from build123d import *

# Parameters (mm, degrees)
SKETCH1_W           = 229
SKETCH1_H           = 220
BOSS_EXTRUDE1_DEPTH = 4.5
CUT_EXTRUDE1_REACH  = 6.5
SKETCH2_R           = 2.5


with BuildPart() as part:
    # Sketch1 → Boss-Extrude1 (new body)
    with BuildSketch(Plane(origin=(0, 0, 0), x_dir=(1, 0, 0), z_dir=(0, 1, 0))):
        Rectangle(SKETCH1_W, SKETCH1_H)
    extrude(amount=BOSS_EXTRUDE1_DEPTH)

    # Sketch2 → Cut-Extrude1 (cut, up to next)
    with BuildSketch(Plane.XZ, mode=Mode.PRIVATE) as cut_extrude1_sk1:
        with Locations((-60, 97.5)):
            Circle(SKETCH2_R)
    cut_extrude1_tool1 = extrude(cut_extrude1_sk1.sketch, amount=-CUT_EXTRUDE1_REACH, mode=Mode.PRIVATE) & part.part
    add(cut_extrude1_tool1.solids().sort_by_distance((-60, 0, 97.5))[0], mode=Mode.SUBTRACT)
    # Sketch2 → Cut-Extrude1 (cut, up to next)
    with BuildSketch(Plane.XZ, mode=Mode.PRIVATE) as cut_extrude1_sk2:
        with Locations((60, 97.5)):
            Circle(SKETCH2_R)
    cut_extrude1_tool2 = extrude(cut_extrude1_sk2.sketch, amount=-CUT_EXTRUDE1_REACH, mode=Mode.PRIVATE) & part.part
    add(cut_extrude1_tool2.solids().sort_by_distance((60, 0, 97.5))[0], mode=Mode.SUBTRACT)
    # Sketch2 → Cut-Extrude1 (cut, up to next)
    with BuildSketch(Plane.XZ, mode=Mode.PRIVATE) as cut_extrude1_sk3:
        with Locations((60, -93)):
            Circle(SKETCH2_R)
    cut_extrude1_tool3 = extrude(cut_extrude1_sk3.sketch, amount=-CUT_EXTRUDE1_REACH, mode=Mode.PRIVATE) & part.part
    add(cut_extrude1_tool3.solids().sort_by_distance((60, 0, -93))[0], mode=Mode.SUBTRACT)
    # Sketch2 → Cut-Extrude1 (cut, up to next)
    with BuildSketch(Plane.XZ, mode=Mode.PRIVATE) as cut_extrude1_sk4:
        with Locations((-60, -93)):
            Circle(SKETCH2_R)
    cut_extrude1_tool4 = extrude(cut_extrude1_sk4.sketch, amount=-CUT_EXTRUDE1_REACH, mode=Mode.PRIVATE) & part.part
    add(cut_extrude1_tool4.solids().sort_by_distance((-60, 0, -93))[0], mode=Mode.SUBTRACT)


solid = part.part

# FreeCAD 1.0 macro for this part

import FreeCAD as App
import Part
import Sketcher

doc = App.newDocument("Part")
body = doc.addObject("PartDesign::Body", "Body")

# Sketch on XZ plane
sketch1 = doc.addObject("Sketcher::SketchObject", "Sketch")
body.addObject(sketch1)
sketch1.AttachmentSupport = (doc.XZ_Plane, [""])
sketch1.MapMode = "FlatFace"
sketch1.addGeometry(Part.LineSegment(App.Vector(-114, -110, 0), App.Vector(-114, 110, 0)), False)
sketch1.addGeometry(Part.LineSegment(App.Vector(-114, 110, 0), App.Vector(114, 110, 0)), False)
sketch1.addGeometry(Part.LineSegment(App.Vector(114, 110, 0), App.Vector(114, -110, 0)), False)
sketch1.addGeometry(Part.LineSegment(App.Vector(114, -110, 0), App.Vector(-114, -110, 0)), False)
sketch1.addConstraint(Sketcher.Constraint("Coincident", 0, 2, 1, 1))
sketch1.addConstraint(Sketcher.Constraint("Coincident", 1, 2, 2, 1))
sketch1.addConstraint(Sketcher.Constraint("Coincident", 2, 2, 3, 1))
sketch1.addConstraint(Sketcher.Constraint("Coincident", 3, 2, 0, 1))
sketch1.addConstraint(Sketcher.Constraint("Vertical", 0))
sketch1.addConstraint(Sketcher.Constraint("Horizontal", 1))
sketch1.addConstraint(Sketcher.Constraint("Vertical", 2))
sketch1.addConstraint(Sketcher.Constraint("Horizontal", 3))
sketch1.addConstraint(Sketcher.Constraint("Symmetric", 0, 2, 2, 2, -1, 1))
sketch1.addConstraint(Sketcher.Constraint("DistanceX", 1, 1, 1, 2, 229.0))
sketch1.addConstraint(Sketcher.Constraint("DistanceY", 0, 1, 0, 2, 220.0))
pad1 = doc.addObject("PartDesign::Pad", "Pad")
body.addObject(pad1)
pad1.Profile = sketch1
pad1.Length = 4.5
pad1.Reversed = True

# Sketch on XZ plane
sketch2 = doc.addObject("Sketcher::SketchObject", "Sketch001")
body.addObject(sketch2)
sketch2.AttachmentSupport = (doc.XZ_Plane, [""])
sketch2.MapMode = "FlatFace"
sketch2.addGeometry(Part.Circle(App.Vector(-60, 97.5, 0), App.Vector(0, 0, 1), 2.5), False)
sketch2.addConstraint(Sketcher.Constraint("Diameter", 0, 5.0))
sketch2.addConstraint(Sketcher.Constraint("DistanceX", 0, 3, -1, 1, 60.0))
sketch2.addConstraint(Sketcher.Constraint("DistanceY", -1, 1, 0, 3, 97.5))
pocket1 = doc.addObject("PartDesign::Pocket", "Pocket")
body.addObject(pocket1)
pocket1.Profile = sketch2
pocket1.Type = "UpToFirst"

# Sketch on XZ plane
sketch3 = doc.addObject("Sketcher::SketchObject", "Sketch002")
body.addObject(sketch3)
sketch3.AttachmentSupport = (doc.XZ_Plane, [""])
sketch3.MapMode = "FlatFace"
sketch3.addGeometry(Part.Circle(App.Vector(60, 97.5, 0), App.Vector(0, 0, 1), 2.5), False)
sketch3.addConstraint(Sketcher.Constraint("Diameter", 0, 5.0))
sketch3.addConstraint(Sketcher.Constraint("DistanceX", -1, 1, 0, 3, 60.0))
sketch3.addConstraint(Sketcher.Constraint("DistanceY", -1, 1, 0, 3, 97.5))
pocket2 = doc.addObject("PartDesign::Pocket", "Pocket001")
body.addObject(pocket2)
pocket2.Profile = sketch3
pocket2.Type = "UpToFirst"

# Sketch on XZ plane
sketch4 = doc.addObject("Sketcher::SketchObject", "Sketch003")
body.addObject(sketch4)
sketch4.AttachmentSupport = (doc.XZ_Plane, [""])
sketch4.MapMode = "FlatFace"
sketch4.addGeometry(Part.Circle(App.Vector(60, -93, 0), App.Vector(0, 0, 1), 2.5), False)
sketch4.addConstraint(Sketcher.Constraint("Diameter", 0, 5.0))
sketch4.addConstraint(Sketcher.Constraint("DistanceX", -1, 1, 0, 3, 60.0))
sketch4.addConstraint(Sketcher.Constraint("DistanceY", 0, 3, -1, 1, 93.0))
pocket3 = doc.addObject("PartDesign::Pocket", "Pocket002")
body.addObject(pocket3)
pocket3.Profile = sketch4
pocket3.Type = "UpToFirst"

# Sketch on XZ plane
sketch5 = doc.addObject("Sketcher::SketchObject", "Sketch004")
body.addObject(sketch5)
sketch5.AttachmentSupport = (doc.XZ_Plane, [""])
sketch5.MapMode = "FlatFace"
sketch5.addGeometry(Part.Circle(App.Vector(-60, -93, 0), App.Vector(0, 0, 1), 2.5), False)
sketch5.addConstraint(Sketcher.Constraint("Diameter", 0, 5.0))
sketch5.addConstraint(Sketcher.Constraint("DistanceX", 0, 3, -1, 1, 60.0))
sketch5.addConstraint(Sketcher.Constraint("DistanceY", 0, 3, -1, 1, 93.0))
pocket4 = doc.addObject("PartDesign::Pocket", "Pocket003")
body.addObject(pocket4)
pocket4.Profile = sketch5
pocket4.Type = "UpToFirst"

doc.recompute()
